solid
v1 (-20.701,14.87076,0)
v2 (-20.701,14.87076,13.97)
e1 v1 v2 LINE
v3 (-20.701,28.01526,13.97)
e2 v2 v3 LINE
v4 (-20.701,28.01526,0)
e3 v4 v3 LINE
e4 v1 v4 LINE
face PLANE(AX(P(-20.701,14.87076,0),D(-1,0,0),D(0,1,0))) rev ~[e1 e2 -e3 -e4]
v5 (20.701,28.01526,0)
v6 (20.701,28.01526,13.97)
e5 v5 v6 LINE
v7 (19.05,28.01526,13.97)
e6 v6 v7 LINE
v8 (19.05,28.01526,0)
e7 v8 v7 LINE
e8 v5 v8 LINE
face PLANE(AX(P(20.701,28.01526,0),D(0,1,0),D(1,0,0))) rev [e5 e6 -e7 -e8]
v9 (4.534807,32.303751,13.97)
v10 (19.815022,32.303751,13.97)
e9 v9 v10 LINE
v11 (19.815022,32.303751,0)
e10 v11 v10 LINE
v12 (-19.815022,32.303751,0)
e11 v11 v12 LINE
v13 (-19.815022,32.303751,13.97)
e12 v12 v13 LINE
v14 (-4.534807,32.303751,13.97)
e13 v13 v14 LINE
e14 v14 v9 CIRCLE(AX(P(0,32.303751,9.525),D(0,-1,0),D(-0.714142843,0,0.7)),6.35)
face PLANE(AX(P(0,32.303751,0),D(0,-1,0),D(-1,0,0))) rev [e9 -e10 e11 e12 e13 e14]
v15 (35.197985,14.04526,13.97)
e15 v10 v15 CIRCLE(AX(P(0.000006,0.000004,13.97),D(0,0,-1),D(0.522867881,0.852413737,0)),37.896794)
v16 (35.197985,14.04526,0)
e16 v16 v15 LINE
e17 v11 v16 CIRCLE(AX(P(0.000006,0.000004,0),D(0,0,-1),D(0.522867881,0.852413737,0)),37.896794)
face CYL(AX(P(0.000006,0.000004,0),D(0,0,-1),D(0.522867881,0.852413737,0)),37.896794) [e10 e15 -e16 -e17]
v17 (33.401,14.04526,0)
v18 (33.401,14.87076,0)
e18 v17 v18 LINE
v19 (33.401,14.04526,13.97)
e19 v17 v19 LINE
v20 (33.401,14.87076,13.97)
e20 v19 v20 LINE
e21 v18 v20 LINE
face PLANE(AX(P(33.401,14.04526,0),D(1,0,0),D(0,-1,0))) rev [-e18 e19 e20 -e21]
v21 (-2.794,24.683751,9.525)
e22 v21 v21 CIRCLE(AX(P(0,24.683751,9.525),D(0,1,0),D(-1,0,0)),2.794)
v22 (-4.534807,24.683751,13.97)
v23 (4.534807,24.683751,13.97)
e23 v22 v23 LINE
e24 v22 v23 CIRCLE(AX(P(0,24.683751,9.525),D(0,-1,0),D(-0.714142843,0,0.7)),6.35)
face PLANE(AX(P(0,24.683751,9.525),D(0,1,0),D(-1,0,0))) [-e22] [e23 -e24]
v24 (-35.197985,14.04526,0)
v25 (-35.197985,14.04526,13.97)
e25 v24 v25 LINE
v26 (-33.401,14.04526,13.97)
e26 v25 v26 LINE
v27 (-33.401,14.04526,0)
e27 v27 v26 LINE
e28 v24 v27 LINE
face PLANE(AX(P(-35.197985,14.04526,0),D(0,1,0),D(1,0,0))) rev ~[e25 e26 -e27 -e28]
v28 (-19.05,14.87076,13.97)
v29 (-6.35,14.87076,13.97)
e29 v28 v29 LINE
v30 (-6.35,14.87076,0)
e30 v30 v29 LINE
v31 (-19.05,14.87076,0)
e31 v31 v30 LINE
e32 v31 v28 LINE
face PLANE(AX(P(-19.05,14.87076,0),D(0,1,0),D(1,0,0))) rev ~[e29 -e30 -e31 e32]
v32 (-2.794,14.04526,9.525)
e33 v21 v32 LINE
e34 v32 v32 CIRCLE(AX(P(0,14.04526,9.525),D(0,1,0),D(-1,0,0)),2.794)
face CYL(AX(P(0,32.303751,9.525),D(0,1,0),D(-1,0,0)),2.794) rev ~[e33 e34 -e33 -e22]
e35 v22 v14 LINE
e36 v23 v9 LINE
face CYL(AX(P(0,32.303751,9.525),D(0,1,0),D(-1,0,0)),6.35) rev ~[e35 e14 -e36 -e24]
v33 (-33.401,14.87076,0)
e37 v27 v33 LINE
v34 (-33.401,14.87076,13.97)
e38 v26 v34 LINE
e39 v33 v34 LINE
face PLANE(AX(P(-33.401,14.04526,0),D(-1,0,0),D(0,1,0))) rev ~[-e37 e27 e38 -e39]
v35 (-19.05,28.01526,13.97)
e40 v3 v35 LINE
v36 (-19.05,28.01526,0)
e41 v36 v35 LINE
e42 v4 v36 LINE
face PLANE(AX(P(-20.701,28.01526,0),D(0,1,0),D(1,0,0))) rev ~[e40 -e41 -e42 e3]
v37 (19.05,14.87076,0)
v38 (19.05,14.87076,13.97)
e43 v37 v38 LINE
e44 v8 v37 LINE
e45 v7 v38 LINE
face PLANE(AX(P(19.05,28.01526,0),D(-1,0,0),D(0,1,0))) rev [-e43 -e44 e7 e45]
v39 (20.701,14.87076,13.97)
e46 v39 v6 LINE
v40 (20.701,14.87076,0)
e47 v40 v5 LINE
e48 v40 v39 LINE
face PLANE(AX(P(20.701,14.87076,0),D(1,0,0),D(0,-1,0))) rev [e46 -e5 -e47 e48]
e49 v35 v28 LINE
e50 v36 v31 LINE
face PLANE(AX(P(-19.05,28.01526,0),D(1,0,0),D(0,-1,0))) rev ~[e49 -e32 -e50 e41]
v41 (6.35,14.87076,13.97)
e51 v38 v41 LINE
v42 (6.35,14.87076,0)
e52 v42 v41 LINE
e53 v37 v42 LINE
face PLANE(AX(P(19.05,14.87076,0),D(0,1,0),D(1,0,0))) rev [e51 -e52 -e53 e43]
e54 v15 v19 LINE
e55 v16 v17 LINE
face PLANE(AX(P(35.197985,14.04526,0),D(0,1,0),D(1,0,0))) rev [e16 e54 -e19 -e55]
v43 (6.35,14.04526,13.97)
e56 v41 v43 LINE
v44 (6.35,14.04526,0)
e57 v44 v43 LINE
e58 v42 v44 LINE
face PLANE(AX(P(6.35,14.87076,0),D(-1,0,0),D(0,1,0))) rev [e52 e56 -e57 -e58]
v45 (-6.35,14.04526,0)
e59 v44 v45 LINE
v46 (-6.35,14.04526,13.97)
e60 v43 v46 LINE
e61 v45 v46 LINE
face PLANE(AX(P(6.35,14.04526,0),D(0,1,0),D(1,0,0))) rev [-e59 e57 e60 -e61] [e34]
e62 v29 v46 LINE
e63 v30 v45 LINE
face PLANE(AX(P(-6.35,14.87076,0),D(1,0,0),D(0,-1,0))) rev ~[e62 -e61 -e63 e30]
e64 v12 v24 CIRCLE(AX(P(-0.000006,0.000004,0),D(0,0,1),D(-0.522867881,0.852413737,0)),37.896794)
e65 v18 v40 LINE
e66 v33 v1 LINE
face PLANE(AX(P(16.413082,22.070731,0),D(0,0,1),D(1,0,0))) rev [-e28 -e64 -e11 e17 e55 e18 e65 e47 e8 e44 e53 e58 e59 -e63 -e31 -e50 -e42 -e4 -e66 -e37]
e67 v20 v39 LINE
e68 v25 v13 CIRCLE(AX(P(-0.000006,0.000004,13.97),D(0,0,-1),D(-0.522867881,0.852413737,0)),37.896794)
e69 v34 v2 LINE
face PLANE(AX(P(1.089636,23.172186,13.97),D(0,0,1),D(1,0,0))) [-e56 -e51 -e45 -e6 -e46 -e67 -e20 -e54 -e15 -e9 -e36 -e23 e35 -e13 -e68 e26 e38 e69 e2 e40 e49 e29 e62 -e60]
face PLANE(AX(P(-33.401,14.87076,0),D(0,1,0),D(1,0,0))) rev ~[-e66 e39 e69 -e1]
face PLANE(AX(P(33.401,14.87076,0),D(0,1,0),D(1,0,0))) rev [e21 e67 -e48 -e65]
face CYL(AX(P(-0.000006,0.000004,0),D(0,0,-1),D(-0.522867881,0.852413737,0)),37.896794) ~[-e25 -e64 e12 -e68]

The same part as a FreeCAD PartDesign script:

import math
import FreeCAD as App
import Part
import Sketcher

V = App.Vector
Q = App.Units.Quantity


def add_polygon(sketch, points):
    """Adds a closed chain of lines whose ends are joined by coincident constraints."""
    first, n = sketch.GeometryCount, len(points)
    for a, b in zip(points, points[1:] + points[:1]):
        sketch.addGeometry(Part.LineSegment(App.Vector(*a, 0), App.Vector(*b, 0)), False)
    for i in range(n):
        sketch.addConstraint(Sketcher.Constraint("Coincident", first + i, 2, first + (i + 1) % n, 1))

doc = App.newDocument("Part")
params = doc.addObject("Spreadsheet::Sheet", "Params")
for row, (alias, value) in enumerate([
    ("sketch1_width", "0.5 in"),
    ("sketch1_width2", "0.25 in"),
    ("sketch1_width3", "0.065 in"),
    ("pad1_length", "0.75 in"),
    ("sketch2_diameter", "0.22 in"),
    ("sketch3_diameter", "0.5 in"),
    ("pocket2_length", "0.3 in"),
    ("pocket3_length", "0.2 in"),
], start=1):
    params.set(f"A{row}", alias)
    params.set(f"B{row}", "=" + value)
    params.setAlias(f"B{row}", alias)

body = doc.addObject("PartDesign::Body", "Body")

sketch1 = body.newObject("Sketcher::SketchObject", "Sketch")
sketch1.AttachmentSupport = (doc.getObject("XY_Plane"), [""])
sketch1.MapMode = "FlatFace"
sketch1.addGeometry(Part.LineSegment(V(0, 32.3, 0), V(-19.8, 32.3, 0)), False)
sketch1.addGeometry(Part.ArcOfCircle(Part.Circle(V(0, 0, 0), V(0, 0, 1), 37.9), math.radians(122), math.radians(158)), False)
sketch1.addGeometry(Part.LineSegment(V(-35.2, 14, 0), V(-33.4, 14, 0)), False)
sketch1.addGeometry(Part.LineSegment(V(-33.4, 14, 0), V(-33.4, 14.9, 0)), False)
sketch1.addGeometry(Part.LineSegment(V(-33.4, 14.9, 0), V(-20.7, 14.9, 0)), False)
sketch1.addGeometry(Part.LineSegment(V(-20.7, 14.9, 0), V(-20.7, 28, 0)), False)
sketch1.addGeometry(Part.LineSegment(V(-20.7, 28, 0), V(-19.1, 28, 0)), False)
sketch1.addGeometry(Part.LineSegment(V(-19.1, 28, 0), V(-19.1, 14.9, 0)), False)
sketch1.addGeometry(Part.LineSegment(V(-19.1, 14.9, 0), V(-6.3, 14.9, 0)), False)
sketch1.addGeometry(Part.LineSegment(V(-6.3, 14.9, 0), V(-6.3, 14, 0)), False)
sketch1.addGeometry(Part.LineSegment(V(-6.3, 14, 0), V(0, 14, 0)), False)
sketch1.addGeometry(Part.LineSegment(V(0, 14, 0), V(0, 32.3, 0)), False)
sketch1.addConstraint(Sketcher.Constraint("Coincident", 0, 2, 1, 1))
sketch1.addConstraint(Sketcher.Constraint("Coincident", 1, 2, 2, 1))
sketch1.addConstraint(Sketcher.Constraint("Coincident", 2, 2, 3, 1))
sketch1.addConstraint(Sketcher.Constraint("Coincident", 3, 2, 4, 1))
sketch1.addConstraint(Sketcher.Constraint("Coincident", 4, 2, 5, 1))
sketch1.addConstraint(Sketcher.Constraint("Coincident", 5, 2, 6, 1))
sketch1.addConstraint(Sketcher.Constraint("Coincident", 6, 2, 7, 1))
sketch1.addConstraint(Sketcher.Constraint("Coincident", 7, 2, 8, 1))
sketch1.addConstraint(Sketcher.Constraint("Coincident", 8, 2, 9, 1))
sketch1.addConstraint(Sketcher.Constraint("Coincident", 9, 2, 10, 1))
sketch1.addConstraint(Sketcher.Constraint("Coincident", 10, 2, 11, 1))
sketch1.addConstraint(Sketcher.Constraint("Coincident", 11, 2, 0, 1))
sketch1.addConstraint(Sketcher.Constraint("Horizontal", 0))
sketch1.addConstraint(Sketcher.Constraint("Horizontal", 2))
sketch1.addConstraint(Sketcher.Constraint("Vertical", 3))
sketch1.addConstraint(Sketcher.Constraint("Horizontal", 4))
sketch1.addConstraint(Sketcher.Constraint("Vertical", 5))
sketch1.addConstraint(Sketcher.Constraint("Horizontal", 6))
sketch1.addConstraint(Sketcher.Constraint("Vertical", 7))
sketch1.addConstraint(Sketcher.Constraint("Horizontal", 8))
sketch1.addConstraint(Sketcher.Constraint("Vertical", 9))
sketch1.addConstraint(Sketcher.Constraint("Horizontal", 10))
sketch1.addConstraint(Sketcher.Constraint("Vertical", 11))
sketch1.addConstraint(Sketcher.Constraint("Coincident", 1, 3, -1, 1))
sketch1.addConstraint(Sketcher.Constraint("PointOnObject", 10, 2, -2))
sketch1.addConstraint(Sketcher.Constraint("Horizontal", 4, 2, 7, 2))
sketch1.addConstraint(Sketcher.Constraint("Horizontal", 2, 2, 9, 2))
sketch1.addConstraint(Sketcher.Constraint("Equal", 4, 8))
sketch1.addConstraint(Sketcher.Constraint("DistanceX", 4, 1, 4, 2, Q("0.5 in")))
sketch1.addConstraint(Sketcher.Constraint("DistanceX", 10, 1, 10, 2, Q("0.25 in")))
sketch1.addConstraint(Sketcher.Constraint("DistanceX", 6, 1, 6, 2, Q("0.065 in")))
sketch1.addConstraint(Sketcher.Constraint("DistanceY", 2, 2, 5, 2, Q("0.55 in")))
sketch1.addConstraint(Sketcher.Constraint("DistanceY", 3, 1, 3, 2, Q("0.0325 in")))
sketch1.addConstraint(Sketcher.Constraint("Radius", 1, 37.896794))
sketch1.addConstraint(Sketcher.Constraint("DistanceX", 0, 2, 0, 1, 19.815022))
sketch1.addConstraint(Sketcher.Constraint("DistanceY", 11, 1, 11, 2, 18.258491))
sketch1.setExpression("Constraints[28]", "Params.sketch1_width")
sketch1.setExpression("Constraints[29]", "Params.sketch1_width2")
sketch1.setExpression("Constraints[30]", "Params.sketch1_width3")
pad1 = body.newObject("PartDesign::Pad", "Pad")
pad1.Profile = sketch1
pad1.setExpression("Length", "Params.pad1_length")
body2 = doc.addObject("PartDesign::Body", "Body001")
doc.recompute()

body2.BaseFeature = body
doc.recompute()

mirroring = doc.addObject("Part::Mirroring", "Mirroring")
mirroring.Source = body
mirroring.Base = V(0, 0, 0)
mirroring.Normal = V(1, 0, 0)
body3 = doc.addObject("PartDesign::Body", "Body002")
body3.BaseFeature = mirroring
boolean = body2.newObject("PartDesign::Boolean", "Boolean")
boolean.Type = "Fuse"
boolean.addObjects([body3])
doc.recompute()

sketch2 = body2.newObject("Sketcher::SketchObject", "Sketch001")
sketch2.AttachmentSupport = (doc.getObject("XZ_Plane001"), [""])
sketch2.MapMode = "FlatFace"
sketch2.AttachmentOffset = App.Placement(V(0, 0, -32.303751), App.Rotation())
sketch2.addGeometry(Part.Circle(V(0, 9.5, 0), V(0, 0, 1), 2.8), False)
sketch2.addConstraint(Sketcher.Constraint("PointOnObject", 0, 3, -2))
sketch2.addConstraint(Sketcher.Constraint("Diameter", 0, Q("0.22 in")))
sketch2.addConstraint(Sketcher.Constraint("DistanceY", -1, 1, 0, 3, Q("0.375 in")))
sketch2.setExpression("Constraints[1]", "Params.sketch2_diameter")
pocket1 = body2.newObject("PartDesign::Pocket", "Pocket")
pocket1.Profile = sketch2
pocket1.Type = "ThroughAll"
pocket1.Reversed = True

sketch3 = body2.newObject("Sketcher::SketchObject", "Sketch002")
sketch3.AttachmentSupport = (doc.getObject("XZ_Plane001"), [""])
sketch3.MapMode = "FlatFace"
sketch3.AttachmentOffset = App.Placement(V(0, 0, -32.303751), App.Rotation())
sketch3.addGeometry(Part.Circle(V(0, 10, 0), V(0, 0, 1), 6), False)
sketch3.addConstraint(Sketcher.Constraint("PointOnObject", 0, 3, -2))
sketch3.addConstraint(Sketcher.Constraint("Diameter", 0, Q("0.5 in")))
sketch3.addConstraint(Sketcher.Constraint("DistanceY", -1, 1, 0, 3, Q("0.375 in")))
sketch3.setExpression("Constraints[1]", "Params.sketch3_diameter")
pocket2 = body2.newObject("PartDesign::Pocket", "Pocket001")
pocket2.Profile = sketch3
pocket2.setExpression("Length", "Params.pocket2_length")
pocket2.Reversed = True

sketch4 = body2.newObject("Sketcher::SketchObject", "Sketch003")
sketch4.AttachmentSupport = (doc.getObject("XY_Plane001"), [""])
sketch4.MapMode = "FlatFace"
sketch4.AttachmentOffset = App.Placement(V(0, 0, 0.75 * 25.4), App.Rotation())
add_polygon(sketch4, [(-40, 34), (-40, 12), (42, 12), (42, 34)])
sketch4.addConstraint(Sketcher.Constraint("Vertical", 0))
sketch4.addConstraint(Sketcher.Constraint("Horizontal", 1))
sketch4.addConstraint(Sketcher.Constraint("Vertical", 2))
sketch4.addConstraint(Sketcher.Constraint("Horizontal", 3))
sketch4.addConstraint(Sketcher.Constraint("DistanceX", 1, 1, 1, 2, 82.632937))
sketch4.addConstraint(Sketcher.Constraint("DistanceY", 0, 2, 0, 1, 21.472244))
sketch4.addConstraint(Sketcher.Constraint("DistanceX", 0, 2, -1, 1, 40.226833))
sketch4.addConstraint(Sketcher.Constraint("DistanceY", -1, 1, 0, 2, 12.436064))
pocket3 = body2.newObject("PartDesign::Pocket", "Pocket002")
pocket3.Profile = sketch4
pocket3.setExpression("Length", "Params.pocket3_length")
mirroring.Visibility = False

doc.recompute()
